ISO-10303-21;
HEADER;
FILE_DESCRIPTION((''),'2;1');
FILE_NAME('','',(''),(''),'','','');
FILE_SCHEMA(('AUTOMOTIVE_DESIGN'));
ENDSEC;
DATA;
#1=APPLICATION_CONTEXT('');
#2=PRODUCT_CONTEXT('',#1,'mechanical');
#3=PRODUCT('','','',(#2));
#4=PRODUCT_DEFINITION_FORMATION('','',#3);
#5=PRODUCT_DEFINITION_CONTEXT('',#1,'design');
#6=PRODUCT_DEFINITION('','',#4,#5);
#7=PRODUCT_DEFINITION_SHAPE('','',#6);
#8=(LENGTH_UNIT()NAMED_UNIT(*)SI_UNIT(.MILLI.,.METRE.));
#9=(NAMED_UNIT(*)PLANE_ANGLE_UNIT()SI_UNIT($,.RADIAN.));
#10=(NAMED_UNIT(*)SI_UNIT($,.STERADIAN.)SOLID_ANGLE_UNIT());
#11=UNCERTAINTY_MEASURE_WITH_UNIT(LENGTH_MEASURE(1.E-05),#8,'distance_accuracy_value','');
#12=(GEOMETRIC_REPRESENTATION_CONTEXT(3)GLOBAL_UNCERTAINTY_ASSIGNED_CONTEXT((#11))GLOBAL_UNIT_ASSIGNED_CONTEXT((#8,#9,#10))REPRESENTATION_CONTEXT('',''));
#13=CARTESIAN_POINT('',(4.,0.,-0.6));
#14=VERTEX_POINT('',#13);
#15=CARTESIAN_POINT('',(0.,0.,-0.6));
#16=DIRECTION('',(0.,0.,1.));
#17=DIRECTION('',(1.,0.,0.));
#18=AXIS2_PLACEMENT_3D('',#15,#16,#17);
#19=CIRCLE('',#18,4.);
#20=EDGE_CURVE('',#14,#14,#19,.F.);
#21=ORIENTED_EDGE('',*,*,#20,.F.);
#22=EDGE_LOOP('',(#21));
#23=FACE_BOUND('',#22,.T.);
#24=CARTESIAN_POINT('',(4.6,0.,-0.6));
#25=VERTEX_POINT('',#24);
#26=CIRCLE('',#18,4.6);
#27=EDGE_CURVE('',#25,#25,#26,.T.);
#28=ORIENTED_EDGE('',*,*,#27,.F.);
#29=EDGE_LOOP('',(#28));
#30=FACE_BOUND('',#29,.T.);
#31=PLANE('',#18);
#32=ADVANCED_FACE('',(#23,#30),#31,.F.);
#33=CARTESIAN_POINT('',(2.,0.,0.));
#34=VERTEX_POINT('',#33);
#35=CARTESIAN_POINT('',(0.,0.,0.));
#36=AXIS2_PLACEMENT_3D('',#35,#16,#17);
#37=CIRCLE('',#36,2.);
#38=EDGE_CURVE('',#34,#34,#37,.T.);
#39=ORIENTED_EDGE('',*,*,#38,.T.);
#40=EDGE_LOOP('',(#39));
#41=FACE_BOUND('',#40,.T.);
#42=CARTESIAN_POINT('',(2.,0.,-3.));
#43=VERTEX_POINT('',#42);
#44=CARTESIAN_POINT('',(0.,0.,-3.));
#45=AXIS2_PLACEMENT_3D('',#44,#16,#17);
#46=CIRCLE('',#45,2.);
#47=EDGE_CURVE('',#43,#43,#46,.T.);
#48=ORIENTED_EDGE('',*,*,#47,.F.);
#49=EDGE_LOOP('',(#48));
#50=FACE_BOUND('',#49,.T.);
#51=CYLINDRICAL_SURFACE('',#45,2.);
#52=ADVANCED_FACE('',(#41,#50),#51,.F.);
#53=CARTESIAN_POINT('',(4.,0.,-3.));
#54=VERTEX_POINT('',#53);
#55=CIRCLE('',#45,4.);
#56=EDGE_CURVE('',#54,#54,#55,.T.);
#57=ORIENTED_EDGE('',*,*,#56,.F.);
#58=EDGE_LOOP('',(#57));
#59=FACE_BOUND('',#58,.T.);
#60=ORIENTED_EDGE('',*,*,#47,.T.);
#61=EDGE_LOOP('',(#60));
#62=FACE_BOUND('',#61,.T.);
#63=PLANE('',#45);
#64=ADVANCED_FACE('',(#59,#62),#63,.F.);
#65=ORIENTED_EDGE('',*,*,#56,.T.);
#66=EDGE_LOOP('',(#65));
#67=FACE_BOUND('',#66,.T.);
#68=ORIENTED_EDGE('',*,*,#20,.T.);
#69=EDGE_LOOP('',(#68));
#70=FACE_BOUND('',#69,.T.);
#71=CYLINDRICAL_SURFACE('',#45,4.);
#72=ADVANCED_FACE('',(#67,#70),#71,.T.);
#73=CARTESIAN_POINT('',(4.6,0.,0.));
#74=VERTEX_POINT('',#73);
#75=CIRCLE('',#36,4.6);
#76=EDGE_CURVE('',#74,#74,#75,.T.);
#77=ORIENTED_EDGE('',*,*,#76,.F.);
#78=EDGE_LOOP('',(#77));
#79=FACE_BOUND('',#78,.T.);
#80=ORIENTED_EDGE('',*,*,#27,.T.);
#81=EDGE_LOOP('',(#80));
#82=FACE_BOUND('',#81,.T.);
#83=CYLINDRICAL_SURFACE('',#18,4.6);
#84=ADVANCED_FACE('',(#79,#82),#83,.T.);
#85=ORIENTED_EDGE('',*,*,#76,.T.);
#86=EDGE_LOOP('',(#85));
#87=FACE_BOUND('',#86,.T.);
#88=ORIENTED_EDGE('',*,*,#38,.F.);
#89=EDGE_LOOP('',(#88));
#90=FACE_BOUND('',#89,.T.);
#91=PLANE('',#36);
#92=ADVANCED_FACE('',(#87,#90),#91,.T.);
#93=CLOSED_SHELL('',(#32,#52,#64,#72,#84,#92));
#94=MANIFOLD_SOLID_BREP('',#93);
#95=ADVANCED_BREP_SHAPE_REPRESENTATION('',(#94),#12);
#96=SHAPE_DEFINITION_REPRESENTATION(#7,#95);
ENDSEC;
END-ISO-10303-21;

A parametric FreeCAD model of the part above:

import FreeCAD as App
import Part
import Sketcher
from FreeCAD import Vector
Q = App.Units.Quantity

doc = App.newDocument("Part")
body = doc.addObject("PartDesign::Body", "Body")

# Sketch on XY plane
sketch1 = body.newObject("Sketcher::SketchObject", "Sketch")
sketch1.AttachmentSupport = (doc.getObject("XY_Plane"), [""])
sketch1.MapMode = "FlatFace"
sketch1.addGeometry([
    Part.Circle(Vector(0, 0, 0), Vector(0, 0, 1), 4),
    Part.Circle(Vector(0, 0, 0), Vector(0, 0, 1), 2),
], False)
sketch1.addConstraint([
    Sketcher.Constraint("Coincident", 0, 3, -1, 1),
    Sketcher.Constraint("Coincident", 1, 3, -1, 1),
    Sketcher.Constraint("Diameter", 0, Q("8 mm")),
    Sketcher.Constraint("Diameter", 1, Q("4 mm")),
])
pad1 = body.newObject("PartDesign::Pad", "Pad")
pad1.Profile = sketch1
pad1.Length = 3
pad1.Reversed = True

# Sketch on XY plane
sketch2 = body.newObject("Sketcher::SketchObject", "Sketch001")
sketch2.AttachmentSupport = (doc.getObject("XY_Plane"), [""])
sketch2.MapMode = "FlatFace"
sketch2.addGeometry([
    Part.Circle(Vector(0, 0, 0), Vector(0, 0, 1), 4.6),
    Part.Circle(Vector(0, 0, 0), Vector(0, 0, 1), 4),
], False)
sketch2.addConstraint([
    Sketcher.Constraint("Coincident", 0, 3, -1, 1),
    Sketcher.Constraint("Coincident", 1, 3, -1, 1),
    Sketcher.Constraint("Diameter", 1, Q("8 mm")),
    Sketcher.Constraint("Diameter", 0, Q("9.2 mm")),
])
pad2 = body.newObject("PartDesign::Pad", "Pad001")
pad2.Profile = sketch2
pad2.Length = 0.6
pad2.Reversed = True

doc.recompute()
